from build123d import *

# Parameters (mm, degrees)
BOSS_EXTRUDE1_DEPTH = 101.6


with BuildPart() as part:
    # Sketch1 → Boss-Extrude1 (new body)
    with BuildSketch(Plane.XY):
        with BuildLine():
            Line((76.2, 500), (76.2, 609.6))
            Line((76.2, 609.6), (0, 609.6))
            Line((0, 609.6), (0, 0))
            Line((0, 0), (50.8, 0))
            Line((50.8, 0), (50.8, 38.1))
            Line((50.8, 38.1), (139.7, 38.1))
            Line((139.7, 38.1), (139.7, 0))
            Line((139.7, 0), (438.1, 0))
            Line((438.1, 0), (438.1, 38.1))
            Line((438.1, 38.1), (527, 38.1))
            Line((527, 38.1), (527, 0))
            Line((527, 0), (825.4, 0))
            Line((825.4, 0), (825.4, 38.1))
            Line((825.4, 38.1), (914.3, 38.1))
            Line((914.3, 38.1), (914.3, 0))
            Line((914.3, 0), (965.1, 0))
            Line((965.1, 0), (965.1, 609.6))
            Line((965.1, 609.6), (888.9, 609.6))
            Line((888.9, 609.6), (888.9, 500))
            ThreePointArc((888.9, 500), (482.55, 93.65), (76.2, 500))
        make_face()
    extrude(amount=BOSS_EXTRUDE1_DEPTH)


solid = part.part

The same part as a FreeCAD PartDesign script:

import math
import FreeCAD as App
import Part
import Sketcher
Q = App.Units.Quantity

doc = App.newDocument("Part")
params = doc.addObject("Spreadsheet::Sheet", "Params")
for row, (alias, value) in enumerate([
    ("sketch1_width", "3 in"),
    ("sketch1_width2", "2 in"),
    ("sketch1_height", "24 in"),
    ("sketch1_width3", "3.5 in"),
    ("sketch1_height2", "1.5 in"),
    ("pad1_length", "4 in"),
], start=1):
    params.set(f"A{row}", alias)
    params.set(f"B{row}", "=" + value)
    params.setAlias(f"B{row}", alias)

body = doc.addObject("PartDesign::Body", "Body")

# Sketch on XY plane
sketch1 = body.newObject("Sketcher::SketchObject", "Sketch")
sketch1.AttachmentSupport = (doc.getObject("XY_Plane"), [""])
sketch1.MapMode = "FlatFace"
sketch1.addGeometry(Part.LineSegment(App.Vector(76.2, 500, 0), App.Vector(76.2, 609.6, 0)), False)
sketch1.addGeometry(Part.LineSegment(App.Vector(76.2, 609.6, 0), App.Vector(0, 609.6, 0)), False)
sketch1.addGeometry(Part.LineSegment(App.Vector(0, 609.6, 0), App.Vector(0, 0, 0)), False)
sketch1.addGeometry(Part.LineSegment(App.Vector(0, 0, 0), App.Vector(50.8, 0, 0)), False)
sketch1.addGeometry(Part.LineSegment(App.Vector(50.8, 0, 0), App.Vector(50.8, 38.1, 0)), False)
sketch1.addGeometry(Part.LineSegment(App.Vector(50.8, 38.1, 0), App.Vector(139.7, 38.1, 0)), False)
sketch1.addGeometry(Part.LineSegment(App.Vector(139.7, 38.1, 0), App.Vector(139.7, 0, 0)), False)
sketch1.addGeometry(Part.LineSegment(App.Vector(139.7, 0, 0), App.Vector(438.1, 0, 0)), False)
sketch1.addGeometry(Part.LineSegment(App.Vector(438.1, 0, 0), App.Vector(438.1, 38.1, 0)), False)
sketch1.addGeometry(Part.LineSegment(App.Vector(438.1, 38.1, 0), App.Vector(527, 38.1, 0)), False)
sketch1.addGeometry(Part.LineSegment(App.Vector(527, 38.1, 0), App.Vector(527, 0, 0)), False)
sketch1.addGeometry(Part.LineSegment(App.Vector(527, 0, 0), App.Vector(825.4, 0, 0)), False)
sketch1.addGeometry(Part.LineSegment(App.Vector(825.4, 0, 0), App.Vector(825.4, 38.1, 0)), False)
sketch1.addGeometry(Part.LineSegment(App.Vector(825.4, 38.1, 0), App.Vector(914.3, 38.1, 0)), False)
sketch1.addGeometry(Part.LineSegment(App.Vector(914.3, 38.1, 0), App.Vector(914.3, 0, 0)), False)
sketch1.addGeometry(Part.LineSegment(App.Vector(914.3, 0, 0), App.Vector(965.1, 0, 0)), False)
sketch1.addGeometry(Part.LineSegment(App.Vector(965.1, 0, 0), App.Vector(965.1, 609.6, 0)), False)
sketch1.addGeometry(Part.LineSegment(App.Vector(965.1, 609.6, 0), App.Vector(888.9, 609.6, 0)), False)
sketch1.addGeometry(Part.LineSegment(App.Vector(888.9, 609.6, 0), App.Vector(888.9, 500, 0)), False)
sketch1.addGeometry(Part.ArcOfCircle(Part.Circle(App.Vector(482.55, 500, 0), App.Vector(0, 0, 1), 406.35), math.radians(180), math.radians(360)), False)
sketch1.addConstraint(Sketcher.Constraint("Coincident", 0, 2, 1, 1))
sketch1.addConstraint(Sketcher.Constraint("Coincident", 1, 2, 2, 1))
sketch1.addConstraint(Sketcher.Constraint("Coincident", 2, 2, 3, 1))
sketch1.addConstraint(Sketcher.Constraint("Coincident", 3, 2, 4, 1))
sketch1.addConstraint(Sketcher.Constraint("Coincident", 4, 2, 5, 1))
sketch1.addConstraint(Sketcher.Constraint("Coincident", 5, 2, 6, 1))
sketch1.addConstraint(Sketcher.Constraint("Coincident", 6, 2, 7, 1))
sketch1.addConstraint(Sketcher.Constraint("Coincident", 7, 2, 8, 1))
sketch1.addConstraint(Sketcher.Constraint("Coincident", 8, 2, 9, 1))
sketch1.addConstraint(Sketcher.Constraint("Coincident", 9, 2, 10, 1))
sketch1.addConstraint(Sketcher.Constraint("Coincident", 10, 2, 11, 1))
sketch1.addConstraint(Sketcher.Constraint("Coincident", 11, 2, 12, 1))
sketch1.addConstraint(Sketcher.Constraint("Coincident", 12, 2, 13, 1))
sketch1.addConstraint(Sketcher.Constraint("Coincident", 13, 2, 14, 1))
sketch1.addConstraint(Sketcher.Constraint("Coincident", 14, 2, 15, 1))
sketch1.addConstraint(Sketcher.Constraint("Coincident", 15, 2, 16, 1))
sketch1.addConstraint(Sketcher.Constraint("Coincident", 16, 2, 17, 1))
sketch1.addConstraint(Sketcher.Constraint("Coincident", 17, 2, 18, 1))
sketch1.addConstraint(Sketcher.Constraint("Tangent", 18, 2, 19, 2))
sketch1.addConstraint(Sketcher.Constraint("Tangent", 19, 1, 0, 1))
sketch1.addConstraint(Sketcher.Constraint("Vertical", 0))
sketch1.addConstraint(Sketcher.Constraint("Horizontal", 1))
sketch1.addConstraint(Sketcher.Constraint("Vertical", 2))
sketch1.addConstraint(Sketcher.Constraint("Horizontal", 3))
sketch1.addConstraint(Sketcher.Constraint("Vertical", 4))
sketch1.addConstraint(Sketcher.Constraint("Horizontal", 5))
sketch1.addConstraint(Sketcher.Constraint("Vertical", 6))
sketch1.addConstraint(Sketcher.Constraint("Horizontal", 7))
sketch1.addConstraint(Sketcher.Constraint("Vertical", 8))
sketch1.addConstraint(Sketcher.Constraint("Horizontal", 9))
sketch1.addConstraint(Sketcher.Constraint("Vertical", 10))
sketch1.addConstraint(Sketcher.Constraint("Horizontal", 11))
sketch1.addConstraint(Sketcher.Constraint("Vertical", 12))
sketch1.addConstraint(Sketcher.Constraint("Horizontal", 13))
sketch1.addConstraint(Sketcher.Constraint("Vertical", 14))
sketch1.addConstraint(Sketcher.Constraint("Horizontal", 15))
sketch1.addConstraint(Sketcher.Constraint("Vertical", 16))
sketch1.addConstraint(Sketcher.Constraint("Horizontal", 17))
sketch1.addConstraint(Sketcher.Constraint("Vertical", 18))
sketch1.addConstraint(Sketcher.Constraint("Coincident", 2, 2, -1, 1))
sketch1.addConstraint(Sketcher.Constraint("PointOnObject", 6, 2, -1))
sketch1.addConstraint(Sketcher.Constraint("PointOnObject", 10, 2, -1))
sketch1.addConstraint(Sketcher.Constraint("PointOnObject", 14, 2, -1))
sketch1.addConstraint(Sketcher.Constraint("Horizontal", 5, 2, 8, 2))
sketch1.addConstraint(Sketcher.Constraint("Horizontal", 9, 2, 12, 2))
sketch1.addConstraint(Sketcher.Constraint("Horizontal", 1, 2, 16, 2))
sketch1.addConstraint(Sketcher.Constraint("Equal", 5, 9))
sketch1.addConstraint(Sketcher.Constraint("Equal", 7, 11))
sketch1.addConstraint(Sketcher.Constraint("Equal", 9, 13))
sketch1.addConstraint(Sketcher.Constraint("Equal", 3, 15))
sketch1.addConstraint(Sketcher.Constraint("Equal", 1, 17))
sketch1.addConstraint(Sketcher.Constraint("DistanceX", 1, 2, 1, 1, Q("3 in")))
sketch1.addConstraint(Sketcher.Constraint("DistanceX", 3, 1, 3, 2, Q("2 in")))
sketch1.addConstraint(Sketcher.Constraint("DistanceY", 2, 2, 2, 1, Q("24 in")))
sketch1.addConstraint(Sketcher.Constraint("DistanceX", 5, 1, 5, 2, Q("3.5 in")))
sketch1.addConstraint(Sketcher.Constraint("DistanceY", 4, 1, 4, 2, Q("1.5 in")))
sketch1.addConstraint(Sketcher.Constraint("Radius", 19, 406.35))
sketch1.addConstraint(Sketcher.Constraint("DistanceY", 0, 1, 0, 2, 109.6))
sketch1.setExpression("Constraints[51]", "Params.sketch1_width")
sketch1.setExpression("Constraints[52]", "Params.sketch1_width2")
sketch1.setExpression("Constraints[53]", "Params.sketch1_height")
sketch1.setExpression("Constraints[54]", "Params.sketch1_width3")
sketch1.setExpression("Constraints[55]", "Params.sketch1_height2")
pad1 = body.newObject("PartDesign::Pad", "Pad")
pad1.Profile = sketch1
pad1.setExpression("Length", "Params.pad1_length")

doc.recompute()
